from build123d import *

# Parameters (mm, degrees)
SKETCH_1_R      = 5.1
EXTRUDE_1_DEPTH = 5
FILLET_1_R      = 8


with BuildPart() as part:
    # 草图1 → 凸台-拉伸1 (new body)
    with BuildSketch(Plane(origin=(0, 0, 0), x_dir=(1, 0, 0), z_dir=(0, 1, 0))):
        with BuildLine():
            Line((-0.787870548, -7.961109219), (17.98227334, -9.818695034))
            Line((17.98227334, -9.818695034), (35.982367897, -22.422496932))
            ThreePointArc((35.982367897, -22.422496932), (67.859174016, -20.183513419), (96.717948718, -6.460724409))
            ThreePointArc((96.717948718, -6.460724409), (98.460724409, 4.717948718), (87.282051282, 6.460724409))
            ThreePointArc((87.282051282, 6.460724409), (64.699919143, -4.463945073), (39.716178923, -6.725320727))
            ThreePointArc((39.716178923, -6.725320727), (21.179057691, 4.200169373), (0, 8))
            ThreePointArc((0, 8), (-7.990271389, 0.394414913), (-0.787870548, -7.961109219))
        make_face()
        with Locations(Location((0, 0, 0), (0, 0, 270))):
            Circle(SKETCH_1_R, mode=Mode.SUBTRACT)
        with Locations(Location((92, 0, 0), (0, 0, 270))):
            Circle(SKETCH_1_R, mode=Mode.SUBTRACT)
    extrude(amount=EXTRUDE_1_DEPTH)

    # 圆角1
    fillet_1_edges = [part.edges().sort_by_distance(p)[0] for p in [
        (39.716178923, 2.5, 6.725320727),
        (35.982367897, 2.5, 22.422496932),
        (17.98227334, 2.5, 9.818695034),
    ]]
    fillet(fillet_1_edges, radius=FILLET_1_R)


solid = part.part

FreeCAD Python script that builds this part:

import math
import FreeCAD as App
import Part
import Sketcher
Q = App.Units.Quantity


def edges_at(feature, points):
    """Names of the edges that pass closest to the given points."""
    edges = feature.Shape.Edges
    near = lambda p: min(range(len(edges)), key=lambda i: edges[i].distToShape(Part.Vertex(*p))[0])
    return sorted({f"Edge{near(p) + 1}" for p in points})

doc = App.newDocument("Part")
params = doc.addObject("Spreadsheet::Sheet", "Params")
for row, (alias, value) in enumerate([
    ("sketch1_radius", "86 mm"),
    ("sketch1_radius2", "8 mm"),
    ("sketch1_diameter", "10.2 mm"),
    ("pad1_length", "5 mm"),
    ("fillet_radius", "8 mm"),
], start=1):
    params.set(f"A{row}", alias)
    params.set(f"B{row}", "=" + value)
    params.setAlias(f"B{row}", alias)

body = doc.addObject("PartDesign::Body", "Body")

# Sketch on XZ plane
sketch1 = body.newObject("Sketcher::SketchObject", "Sketch")
sketch1.AttachmentSupport = (doc.getObject("XZ_Plane"), [""])
sketch1.MapMode = "FlatFace"
sketch1.addGeometry([
    Part.LineSegment(App.Vector(-0.787871, 7.961109, 0), App.Vector(17.982273, 9.818695, 0)),  # 0
    Part.LineSegment(App.Vector(17.982273, 9.818695, 0), App.Vector(35.982368, 22.422497, 0)),  # 1
    Part.ArcOfCircle(Part.Circle(App.Vector(46, -62.992063, 0), App.Vector(0, 0, 1), 86), math.radians(53.861185), math.radians(96.689233)),  # 2
    Part.ArcOfCircle(Part.Circle(App.Vector(92, 0, 0), App.Vector(0, 0, 1), 8), math.radians(-126.138815), math.radians(53.861185)),  # 3
    Part.ArcOfCircle(Part.Circle(App.Vector(46, -62.992063, 0), App.Vector(0, 0, 1), 70), math.radians(53.861185), math.radians(95.150311)),  # 4
    Part.ArcOfCircle(Part.Circle(App.Vector(0, 52.92261, 0), App.Vector(0, 0, 1), 60.92261), math.radians(-90), math.radians(-49.314088)),  # 5
    Part.ArcOfCircle(Part.Circle(App.Vector(0, 0, 0), App.Vector(0, 0, 1), 8), math.radians(95.651869), math.radians(270)),  # 6
    Part.Circle(App.Vector(0, 0, 0), App.Vector(0, 0, 1), 5.1),  # 7
    Part.Circle(App.Vector(92, 0, 0), App.Vector(0, 0, 1), 5.1),  # 8
], False)
sketch1.addConstraint([
    Sketcher.Constraint("Coincident", 0, 2, 1, 1),
    Sketcher.Constraint("Coincident", 1, 2, 2, 2),
    Sketcher.Constraint("Tangent", 2, 1, 3, 2),
    Sketcher.Constraint("Tangent", 3, 1, 4, 1),
    Sketcher.Constraint("Coincident", 4, 2, 5, 2),
    Sketcher.Constraint("Tangent", 5, 1, 6, 2),
    Sketcher.Constraint("Tangent", 6, 1, 0, 1),
    Sketcher.Constraint("Coincident", 6, 3, -1, 1),
    Sketcher.Constraint("Coincident", 7, 3, -1, 1),
    Sketcher.Constraint("Coincident", 4, 3, 2, 3),
    Sketcher.Constraint("Coincident", 8, 3, 3, 3),
    Sketcher.Constraint("Equal", 3, 6),
    Sketcher.Constraint("Equal", 7, 8),
    Sketcher.Constraint("PointOnObject", 3, 3, -1),
    Sketcher.Constraint("PointOnObject", 5, 3, -2),
    Sketcher.Constraint("Radius", 2, Q("86 mm")),
    Sketcher.Constraint("Radius", 3, Q("8 mm")),
    Sketcher.Constraint("Diameter", 7, Q("10.2 mm")),
    Sketcher.Constraint("Angle", 1, Q("35 deg")),
    Sketcher.Constraint("DistanceX", -1, 1, 2, 3, Q("46 mm")),
    Sketcher.Constraint("DistanceX", -1, 1, 3, 3, Q("92 mm")),
    Sketcher.Constraint("Radius", 5, Q("60.92261 mm")),
    Sketcher.Constraint("DistanceY", 0, 2, 1, 2, Q("12.603802 mm")),
    Sketcher.Constraint("DistanceX", 1, 2, 2, 1, Q("60.735581 mm")),
])
sketch1.setExpression("Constraints[15]", "Params.sketch1_radius")
sketch1.setExpression("Constraints[16]", "Params.sketch1_radius2")
sketch1.setExpression("Constraints[17]", "Params.sketch1_diameter")
pad1 = body.newObject("PartDesign::Pad", "Pad")
pad1.Profile = sketch1
pad1.setExpression("Length", "Params.pad1_length")
pad1.Reversed = True
doc.recompute()

fillet = body.newObject("PartDesign::Fillet", "Fillet")
fillet.Base = (pad1, edges_at(pad1, [(39.716, 2.5, 6.725), (35.982, 2.5, 22.422), (17.982, 2.5, 9.819)]))
fillet.setExpression("Radius", "Params.fillet_radius")

doc.recompute()
